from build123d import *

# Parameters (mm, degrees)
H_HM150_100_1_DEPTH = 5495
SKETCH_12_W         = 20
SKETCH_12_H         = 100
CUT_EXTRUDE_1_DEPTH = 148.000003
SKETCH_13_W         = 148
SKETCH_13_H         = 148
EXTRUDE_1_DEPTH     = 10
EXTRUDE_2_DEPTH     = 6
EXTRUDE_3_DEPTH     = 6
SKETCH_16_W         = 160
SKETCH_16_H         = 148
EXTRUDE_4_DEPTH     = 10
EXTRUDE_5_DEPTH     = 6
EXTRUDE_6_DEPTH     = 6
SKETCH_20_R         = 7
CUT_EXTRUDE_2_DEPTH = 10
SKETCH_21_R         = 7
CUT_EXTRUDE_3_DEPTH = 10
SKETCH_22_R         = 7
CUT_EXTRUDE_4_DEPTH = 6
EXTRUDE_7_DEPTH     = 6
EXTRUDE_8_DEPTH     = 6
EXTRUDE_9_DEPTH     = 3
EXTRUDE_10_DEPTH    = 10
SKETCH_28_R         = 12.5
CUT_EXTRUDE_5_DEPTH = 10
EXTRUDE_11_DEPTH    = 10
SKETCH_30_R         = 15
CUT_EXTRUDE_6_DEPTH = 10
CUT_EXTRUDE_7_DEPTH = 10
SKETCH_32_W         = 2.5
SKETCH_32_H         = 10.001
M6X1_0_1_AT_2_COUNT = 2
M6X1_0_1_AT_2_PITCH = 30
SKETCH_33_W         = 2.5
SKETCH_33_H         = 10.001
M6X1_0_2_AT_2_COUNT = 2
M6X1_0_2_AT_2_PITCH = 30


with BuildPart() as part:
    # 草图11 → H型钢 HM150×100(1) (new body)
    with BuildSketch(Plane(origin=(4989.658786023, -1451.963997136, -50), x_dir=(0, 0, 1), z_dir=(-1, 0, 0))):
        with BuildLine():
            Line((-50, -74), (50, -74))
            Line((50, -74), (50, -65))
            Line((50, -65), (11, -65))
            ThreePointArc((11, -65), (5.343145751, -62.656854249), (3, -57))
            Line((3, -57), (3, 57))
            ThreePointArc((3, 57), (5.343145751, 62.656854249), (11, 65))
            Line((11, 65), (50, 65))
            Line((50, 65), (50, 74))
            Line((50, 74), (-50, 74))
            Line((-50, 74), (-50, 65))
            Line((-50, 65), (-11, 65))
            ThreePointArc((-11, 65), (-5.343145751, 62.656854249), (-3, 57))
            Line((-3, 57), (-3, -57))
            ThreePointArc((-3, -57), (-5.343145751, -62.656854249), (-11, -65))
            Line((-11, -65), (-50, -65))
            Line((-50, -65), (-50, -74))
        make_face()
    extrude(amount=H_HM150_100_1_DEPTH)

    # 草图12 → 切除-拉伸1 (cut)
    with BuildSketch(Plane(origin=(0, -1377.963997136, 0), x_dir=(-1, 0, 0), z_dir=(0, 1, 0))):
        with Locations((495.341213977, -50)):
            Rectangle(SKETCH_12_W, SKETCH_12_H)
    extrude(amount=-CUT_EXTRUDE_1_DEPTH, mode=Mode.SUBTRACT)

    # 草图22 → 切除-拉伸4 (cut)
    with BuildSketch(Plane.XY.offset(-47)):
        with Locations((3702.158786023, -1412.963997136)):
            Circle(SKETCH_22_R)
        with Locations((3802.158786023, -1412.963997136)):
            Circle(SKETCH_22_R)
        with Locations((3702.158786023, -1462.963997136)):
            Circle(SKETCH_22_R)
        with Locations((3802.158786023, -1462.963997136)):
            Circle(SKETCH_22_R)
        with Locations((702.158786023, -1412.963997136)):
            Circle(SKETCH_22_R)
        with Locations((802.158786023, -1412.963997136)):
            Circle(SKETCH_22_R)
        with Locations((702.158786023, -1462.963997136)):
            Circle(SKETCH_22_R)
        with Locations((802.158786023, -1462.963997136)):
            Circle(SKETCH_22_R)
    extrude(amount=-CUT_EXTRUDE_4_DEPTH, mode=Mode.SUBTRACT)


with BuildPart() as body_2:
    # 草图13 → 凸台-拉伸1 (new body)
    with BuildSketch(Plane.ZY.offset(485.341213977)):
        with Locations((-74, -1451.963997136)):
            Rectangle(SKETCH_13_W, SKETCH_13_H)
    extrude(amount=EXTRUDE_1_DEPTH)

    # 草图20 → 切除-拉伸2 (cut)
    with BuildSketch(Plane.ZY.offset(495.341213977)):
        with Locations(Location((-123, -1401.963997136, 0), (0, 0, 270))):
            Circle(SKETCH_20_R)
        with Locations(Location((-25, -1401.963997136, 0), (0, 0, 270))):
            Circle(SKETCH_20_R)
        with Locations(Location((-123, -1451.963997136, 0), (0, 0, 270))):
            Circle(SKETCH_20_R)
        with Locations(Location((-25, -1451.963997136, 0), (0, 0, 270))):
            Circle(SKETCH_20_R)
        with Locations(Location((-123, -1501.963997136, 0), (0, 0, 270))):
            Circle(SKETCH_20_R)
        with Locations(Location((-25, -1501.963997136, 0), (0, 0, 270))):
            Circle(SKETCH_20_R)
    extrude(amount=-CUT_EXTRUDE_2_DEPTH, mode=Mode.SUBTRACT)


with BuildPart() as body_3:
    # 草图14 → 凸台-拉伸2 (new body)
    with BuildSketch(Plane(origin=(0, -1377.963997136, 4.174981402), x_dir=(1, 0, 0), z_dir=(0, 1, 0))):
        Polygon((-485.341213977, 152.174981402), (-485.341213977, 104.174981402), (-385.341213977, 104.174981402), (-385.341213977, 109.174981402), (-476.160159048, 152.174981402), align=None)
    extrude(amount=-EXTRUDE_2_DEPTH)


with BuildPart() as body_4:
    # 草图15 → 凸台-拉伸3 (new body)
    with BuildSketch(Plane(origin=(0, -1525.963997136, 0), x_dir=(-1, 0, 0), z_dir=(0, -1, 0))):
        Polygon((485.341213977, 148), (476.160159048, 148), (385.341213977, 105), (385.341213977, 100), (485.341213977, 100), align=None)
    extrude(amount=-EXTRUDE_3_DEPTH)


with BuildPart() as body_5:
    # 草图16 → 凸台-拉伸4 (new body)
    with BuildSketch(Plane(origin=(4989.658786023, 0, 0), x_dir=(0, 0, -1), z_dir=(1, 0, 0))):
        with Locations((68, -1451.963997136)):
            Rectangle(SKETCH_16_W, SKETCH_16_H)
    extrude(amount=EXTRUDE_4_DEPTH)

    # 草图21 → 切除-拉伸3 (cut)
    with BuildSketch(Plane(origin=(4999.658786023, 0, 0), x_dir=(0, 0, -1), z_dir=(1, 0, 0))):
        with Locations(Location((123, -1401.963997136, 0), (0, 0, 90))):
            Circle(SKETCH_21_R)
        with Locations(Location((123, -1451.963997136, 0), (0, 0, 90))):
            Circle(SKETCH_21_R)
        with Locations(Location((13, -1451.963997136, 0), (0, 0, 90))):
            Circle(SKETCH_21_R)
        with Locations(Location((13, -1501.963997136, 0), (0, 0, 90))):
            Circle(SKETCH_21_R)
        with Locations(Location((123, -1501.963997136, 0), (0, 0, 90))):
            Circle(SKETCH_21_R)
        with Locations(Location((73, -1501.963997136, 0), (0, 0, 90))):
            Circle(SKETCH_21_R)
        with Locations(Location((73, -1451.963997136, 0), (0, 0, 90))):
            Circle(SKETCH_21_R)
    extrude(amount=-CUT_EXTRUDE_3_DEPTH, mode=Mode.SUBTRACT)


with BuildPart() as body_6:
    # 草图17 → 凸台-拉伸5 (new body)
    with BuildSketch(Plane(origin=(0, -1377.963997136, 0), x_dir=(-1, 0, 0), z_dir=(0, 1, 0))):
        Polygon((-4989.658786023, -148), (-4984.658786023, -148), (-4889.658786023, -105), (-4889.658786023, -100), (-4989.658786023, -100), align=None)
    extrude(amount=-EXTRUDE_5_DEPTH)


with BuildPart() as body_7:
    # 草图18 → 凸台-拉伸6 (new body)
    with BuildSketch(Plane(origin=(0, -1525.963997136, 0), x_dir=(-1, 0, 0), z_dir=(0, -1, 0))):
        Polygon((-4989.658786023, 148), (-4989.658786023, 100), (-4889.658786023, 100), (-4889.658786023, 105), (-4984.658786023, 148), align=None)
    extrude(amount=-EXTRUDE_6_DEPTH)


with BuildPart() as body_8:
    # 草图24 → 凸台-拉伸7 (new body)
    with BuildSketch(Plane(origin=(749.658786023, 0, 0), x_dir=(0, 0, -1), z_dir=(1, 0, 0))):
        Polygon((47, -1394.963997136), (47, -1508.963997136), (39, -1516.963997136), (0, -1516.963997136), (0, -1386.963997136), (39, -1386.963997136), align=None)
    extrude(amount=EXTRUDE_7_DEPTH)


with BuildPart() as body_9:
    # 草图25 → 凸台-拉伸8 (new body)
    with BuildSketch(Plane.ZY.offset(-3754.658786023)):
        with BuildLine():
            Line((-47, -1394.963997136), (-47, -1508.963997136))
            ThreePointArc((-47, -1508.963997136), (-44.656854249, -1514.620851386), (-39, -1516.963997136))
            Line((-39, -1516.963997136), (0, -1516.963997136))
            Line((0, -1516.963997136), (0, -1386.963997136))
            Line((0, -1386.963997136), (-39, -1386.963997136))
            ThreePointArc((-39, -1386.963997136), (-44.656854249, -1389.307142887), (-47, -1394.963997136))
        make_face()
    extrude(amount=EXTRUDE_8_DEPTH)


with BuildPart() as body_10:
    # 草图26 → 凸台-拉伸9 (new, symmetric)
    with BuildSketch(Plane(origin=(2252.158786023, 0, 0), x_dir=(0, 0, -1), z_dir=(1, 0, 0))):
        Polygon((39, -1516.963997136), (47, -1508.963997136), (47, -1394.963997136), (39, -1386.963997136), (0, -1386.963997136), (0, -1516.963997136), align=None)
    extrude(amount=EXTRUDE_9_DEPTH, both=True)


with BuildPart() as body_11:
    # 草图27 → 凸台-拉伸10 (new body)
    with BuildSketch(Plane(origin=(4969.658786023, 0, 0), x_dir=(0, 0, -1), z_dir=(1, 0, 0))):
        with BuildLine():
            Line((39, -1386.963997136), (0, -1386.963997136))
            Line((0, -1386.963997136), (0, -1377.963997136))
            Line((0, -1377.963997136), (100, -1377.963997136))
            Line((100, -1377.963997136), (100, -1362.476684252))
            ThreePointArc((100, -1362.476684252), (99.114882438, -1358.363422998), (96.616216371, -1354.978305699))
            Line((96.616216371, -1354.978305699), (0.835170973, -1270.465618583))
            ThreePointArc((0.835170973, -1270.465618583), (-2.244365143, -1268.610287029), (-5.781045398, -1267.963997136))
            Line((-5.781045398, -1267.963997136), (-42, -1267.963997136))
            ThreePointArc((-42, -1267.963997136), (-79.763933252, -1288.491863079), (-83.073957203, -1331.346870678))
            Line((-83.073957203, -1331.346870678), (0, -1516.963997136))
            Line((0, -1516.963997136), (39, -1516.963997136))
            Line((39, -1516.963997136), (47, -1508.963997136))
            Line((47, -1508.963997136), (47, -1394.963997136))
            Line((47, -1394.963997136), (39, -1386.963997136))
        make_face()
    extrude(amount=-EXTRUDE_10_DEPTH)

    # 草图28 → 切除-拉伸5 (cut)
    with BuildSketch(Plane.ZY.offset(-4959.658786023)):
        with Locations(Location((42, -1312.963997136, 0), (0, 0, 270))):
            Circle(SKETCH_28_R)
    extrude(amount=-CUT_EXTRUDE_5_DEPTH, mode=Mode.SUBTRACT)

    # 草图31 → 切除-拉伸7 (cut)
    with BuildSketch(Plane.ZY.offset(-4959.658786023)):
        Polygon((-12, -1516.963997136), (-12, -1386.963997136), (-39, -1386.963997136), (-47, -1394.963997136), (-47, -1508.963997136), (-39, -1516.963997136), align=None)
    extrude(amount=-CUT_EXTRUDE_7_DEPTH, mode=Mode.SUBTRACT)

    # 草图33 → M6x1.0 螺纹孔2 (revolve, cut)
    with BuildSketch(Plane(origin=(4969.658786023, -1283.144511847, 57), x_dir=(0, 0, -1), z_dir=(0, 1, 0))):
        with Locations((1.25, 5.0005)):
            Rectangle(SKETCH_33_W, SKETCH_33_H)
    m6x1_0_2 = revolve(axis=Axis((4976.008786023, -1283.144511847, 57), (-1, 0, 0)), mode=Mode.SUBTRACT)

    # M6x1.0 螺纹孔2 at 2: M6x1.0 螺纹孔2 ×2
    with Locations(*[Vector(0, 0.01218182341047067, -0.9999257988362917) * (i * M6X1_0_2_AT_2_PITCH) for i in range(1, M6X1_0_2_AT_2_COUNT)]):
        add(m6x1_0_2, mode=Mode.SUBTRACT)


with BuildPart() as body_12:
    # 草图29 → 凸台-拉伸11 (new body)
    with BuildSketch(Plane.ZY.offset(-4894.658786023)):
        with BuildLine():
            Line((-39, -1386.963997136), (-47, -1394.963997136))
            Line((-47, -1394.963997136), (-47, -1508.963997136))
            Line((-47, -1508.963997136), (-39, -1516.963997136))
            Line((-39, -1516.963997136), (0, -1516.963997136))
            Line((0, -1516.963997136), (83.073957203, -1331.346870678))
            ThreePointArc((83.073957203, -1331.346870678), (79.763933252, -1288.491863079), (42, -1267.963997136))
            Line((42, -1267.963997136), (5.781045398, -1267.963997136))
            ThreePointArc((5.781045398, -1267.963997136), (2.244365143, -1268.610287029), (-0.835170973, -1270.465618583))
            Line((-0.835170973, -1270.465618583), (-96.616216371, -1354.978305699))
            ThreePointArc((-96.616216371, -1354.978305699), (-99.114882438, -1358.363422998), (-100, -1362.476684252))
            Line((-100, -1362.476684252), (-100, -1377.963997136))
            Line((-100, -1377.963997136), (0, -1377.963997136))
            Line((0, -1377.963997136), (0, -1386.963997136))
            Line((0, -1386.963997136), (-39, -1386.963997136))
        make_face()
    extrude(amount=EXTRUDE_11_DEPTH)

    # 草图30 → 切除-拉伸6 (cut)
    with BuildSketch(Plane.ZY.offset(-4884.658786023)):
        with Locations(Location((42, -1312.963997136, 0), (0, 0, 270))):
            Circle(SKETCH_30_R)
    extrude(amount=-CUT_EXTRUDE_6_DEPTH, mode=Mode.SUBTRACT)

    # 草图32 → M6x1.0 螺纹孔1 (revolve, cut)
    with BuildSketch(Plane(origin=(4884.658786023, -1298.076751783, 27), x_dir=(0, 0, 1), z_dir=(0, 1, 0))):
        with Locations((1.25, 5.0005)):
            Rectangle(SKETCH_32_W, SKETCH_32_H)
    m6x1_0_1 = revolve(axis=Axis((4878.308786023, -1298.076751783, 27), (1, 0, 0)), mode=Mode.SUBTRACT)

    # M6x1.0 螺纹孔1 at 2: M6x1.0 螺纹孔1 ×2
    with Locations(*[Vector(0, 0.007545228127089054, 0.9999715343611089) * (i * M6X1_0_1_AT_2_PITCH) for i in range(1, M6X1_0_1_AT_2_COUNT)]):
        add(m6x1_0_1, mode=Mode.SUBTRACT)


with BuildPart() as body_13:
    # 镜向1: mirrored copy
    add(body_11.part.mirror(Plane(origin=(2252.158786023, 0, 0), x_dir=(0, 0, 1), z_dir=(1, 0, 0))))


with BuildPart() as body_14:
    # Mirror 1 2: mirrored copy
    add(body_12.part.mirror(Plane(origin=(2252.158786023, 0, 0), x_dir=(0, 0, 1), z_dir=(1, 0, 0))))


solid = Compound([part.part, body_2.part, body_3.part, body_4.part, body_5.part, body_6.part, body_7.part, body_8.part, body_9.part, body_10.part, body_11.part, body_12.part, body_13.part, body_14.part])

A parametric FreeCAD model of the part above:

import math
import FreeCAD as App
import Part
import Sketcher
Q = App.Units.Quantity

doc = App.newDocument("Part")
body = doc.addObject("PartDesign::Body", "Body")

sketch1 = body.newObject("Sketcher::SketchObject", "Sketch")
sketch1.AttachmentSupport = (doc.getObject("YZ_Plane"), [""])
sketch1.MapMode = "FlatFace"
sketch1.AttachmentOffset = App.Placement(App.Vector(0, 0, 4989.658786), App.Rotation())
sketch1.addGeometry([
    Part.LineSegment(App.Vector(-1526, -100, 0), App.Vector(-1526, 0, 0)),
    Part.LineSegment(App.Vector(-1526, 0, 0), App.Vector(-1517, 0, 0)),
    Part.LineSegment(App.Vector(-1517, 0, 0), App.Vector(-1517, -39, 0)),
    Part.ArcOfCircle(Part.Circle(App.Vector(-1509, -39, 0), App.Vector(0, 0, 1), 8), math.radians(-180), math.radians(-90)),
    Part.LineSegment(App.Vector(-1509, -47, 0), App.Vector(-1395, -47, 0)),
    Part.ArcOfCircle(Part.Circle(App.Vector(-1395, -39, 0), App.Vector(0, 0, 1), 8), math.radians(-90), math.radians(0)),
    Part.LineSegment(App.Vector(-1387, -39, 0), App.Vector(-1387, 0, 0)),
    Part.LineSegment(App.Vector(-1387, 0, 0), App.Vector(-1378, 0, 0)),
    Part.LineSegment(App.Vector(-1378, 0, 0), App.Vector(-1378, -100, 0)),
    Part.LineSegment(App.Vector(-1378, -100, 0), App.Vector(-1387, -100, 0)),
    Part.LineSegment(App.Vector(-1387, -100, 0), App.Vector(-1387, -61, 0)),
    Part.ArcOfCircle(Part.Circle(App.Vector(-1395, -61, 0), App.Vector(0, 0, 1), 8), math.radians(0), math.radians(90)),
    Part.LineSegment(App.Vector(-1395, -53, 0), App.Vector(-1509, -53, 0)),
    Part.ArcOfCircle(Part.Circle(App.Vector(-1509, -61, 0), App.Vector(0, 0, 1), 8), math.radians(90), math.radians(180)),
    Part.LineSegment(App.Vector(-1517, -61, 0), App.Vector(-1517, -100, 0)),
    Part.LineSegment(App.Vector(-1517, -100, 0), App.Vector(-1526, -100, 0)),
], False)
sketch1.addConstraint([
    Sketcher.Constraint("Coincident", 0, 2, 1, 1),
    Sketcher.Constraint("Coincident", 1, 2, 2, 1),
    Sketcher.Constraint("Tangent", 2, 2, 3, 1),
    Sketcher.Constraint("Tangent", 3, 2, 4, 1),
    Sketcher.Constraint("Tangent", 4, 2, 5, 1),
    Sketcher.Constraint("Tangent", 5, 2, 6, 1),
    Sketcher.Constraint("Coincident", 6, 2, 7, 1),
    Sketcher.Constraint("Coincident", 7, 2, 8, 1),
    Sketcher.Constraint("Coincident", 8, 2, 9, 1),
    Sketcher.Constraint("Coincident", 9, 2, 10, 1),
    Sketcher.Constraint("Tangent", 10, 2, 11, 1),
    Sketcher.Constraint("Tangent", 11, 2, 12, 1),
    Sketcher.Constraint("Tangent", 12, 2, 13, 1),
    Sketcher.Constraint("Tangent", 13, 2, 14, 1),
    Sketcher.Constraint("Coincident", 14, 2, 15, 1),
    Sketcher.Constraint("Coincident", 15, 2, 0, 1),
    Sketcher.Constraint("Vertical", 0),
    Sketcher.Constraint("Horizontal", 1),
    Sketcher.Constraint("Vertical", 2),
    Sketcher.Constraint("Horizontal", 4),
    Sketcher.Constraint("Vertical", 6),
    Sketcher.Constraint("Horizontal", 7),
    Sketcher.Constraint("Vertical", 8),
    Sketcher.Constraint("Horizontal", 9),
    Sketcher.Constraint("Vertical", 10),
    Sketcher.Constraint("Horizontal", 12),
    Sketcher.Constraint("Vertical", 14),
    Sketcher.Constraint("Horizontal", 15),
    Sketcher.Constraint("Equal", 3, 5),
    Sketcher.Constraint("Equal", 5, 11),
    Sketcher.Constraint("Equal", 11, 13),
    Sketcher.Constraint("PointOnObject", 0, 2, -1),
    Sketcher.Constraint("PointOnObject", 6, 2, -1),
    Sketcher.Constraint("Horizontal", 9, 2, 14, 2),
    Sketcher.Constraint("Vertical", 5, 3, 11, 3),
    Sketcher.Constraint("Vertical", 3, 3, 13, 3),
    Sketcher.Constraint("Equal", 1, 7),
    Sketcher.Constraint("Equal", 6, 10),
    Sketcher.Constraint("Radius", 3, Q("8 mm")),
    Sketcher.Constraint("DistanceX", 1, 1, 1, 2, Q("9 mm")),
    Sketcher.Constraint("DistanceX", 4, 1, 4, 2, Q("114 mm")),
    Sketcher.Constraint("DistanceY", 0, 1, 0, 2, Q("100 mm")),
    Sketcher.Constraint("DistanceY", 2, 2, 2, 1, Q("39 mm")),
    Sketcher.Constraint("DistanceX", 3, 3, -1, 1, Q("1508.963997 mm")),
])
pad1 = body.newObject("PartDesign::Pad", "Pad")
pad1.Profile = sketch1
pad1.Length = 5495
pad1.Reversed = True

sketch2 = body.newObject("Sketcher::SketchObject", "Sketch001")
sketch2.AttachmentSupport = (doc.getObject("XZ_Plane"), [""])
sketch2.MapMode = "FlatFace"
sketch2.AttachmentOffset = App.Placement(App.Vector(0, 0, 1377.963997), App.Rotation())
sketch2.addGeometry([
    Part.LineSegment(App.Vector(-485, 0, 0), App.Vector(-485, -100, 0)),
    Part.LineSegment(App.Vector(-485, -100, 0), App.Vector(-505, -100, 0)),
    Part.LineSegment(App.Vector(-505, -100, 0), App.Vector(-505, 0, 0)),
    Part.LineSegment(App.Vector(-505, 0, 0), App.Vector(-485, 0, 0)),
], False)
sketch2.addConstraint([
    Sketcher.Constraint("Coincident", 0, 2, 1, 1),
    Sketcher.Constraint("Coincident", 1, 2, 2, 1),
    Sketcher.Constraint("Coincident", 2, 2, 3, 1),
    Sketcher.Constraint("Coincident", 3, 2, 0, 1),
    Sketcher.Constraint("Vertical", 0),
    Sketcher.Constraint("Horizontal", 1),
    Sketcher.Constraint("Vertical", 2),
    Sketcher.Constraint("Horizontal", 3),
    Sketcher.Constraint("PointOnObject", 2, 2, -1),
    Sketcher.Constraint("DistanceX", 1, 2, 1, 1, Q("20 mm")),
    Sketcher.Constraint("DistanceY", 0, 2, 0, 1, Q("100 mm")),
    Sketcher.Constraint("DistanceX", 0, 2, -1, 1, Q("485.341214 mm")),
])
pocket1 = body.newObject("PartDesign::Pocket", "Pocket")
pocket1.Profile = sketch2
pocket1.Length = 148.000003
pocket1.Reversed = True

sketch3 = body.newObject("Sketcher::SketchObject", "Sketch002")
sketch3.AttachmentSupport = (doc.getObject("XY_Plane"), [""])
sketch3.MapMode = "FlatFace"
sketch3.AttachmentOffset = App.Placement(App.Vector(0, 0, -47), App.Rotation())
sketch3.addGeometry([
    Part.Circle(App.Vector(3702, -1413, 0), App.Vector(0, 0, 1), 7),
    Part.Circle(App.Vector(3802, -1413, 0), App.Vector(0, 0, 1), 7),
    Part.Circle(App.Vector(3702, -1463, 0), App.Vector(0, 0, 1), 7),
    Part.Circle(App.Vector(3802, -1463, 0), App.Vector(0, 0, 1), 7),
    Part.Circle(App.Vector(702, -1413, 0), App.Vector(0, 0, 1), 7),
    Part.Circle(App.Vector(802, -1413, 0), App.Vector(0, 0, 1), 7),
    Part.Circle(App.Vector(702, -1463, 0), App.Vector(0, 0, 1), 7),
    Part.Circle(App.Vector(802, -1463, 0), App.Vector(0, 0, 1), 7),
], False)
sketch3.addConstraint([
    Sketcher.Constraint("Equal", 0, 1),
    Sketcher.Constraint("Equal", 1, 2),
    Sketcher.Constraint("Equal", 2, 3),
    Sketcher.Constraint("Equal", 3, 4),
    Sketcher.Constraint("Equal", 4, 5),
    Sketcher.Constraint("Equal", 5, 6),
    Sketcher.Constraint("Equal", 6, 7),
    Sketcher.Constraint("Horizontal", 0, 3, 1, 3),
    Sketcher.Constraint("Horizontal", 2, 3, 3, 3),
    Sketcher.Constraint("Horizontal", 1, 3, 4, 3),
    Sketcher.Constraint("Horizontal", 4, 3, 5, 3),
    Sketcher.Constraint("Horizontal", 3, 3, 6, 3),
    Sketcher.Constraint("Horizontal", 6, 3, 7, 3),
    Sketcher.Constraint("Vertical", 0, 3, 2, 3),
    Sketcher.Constraint("Vertical", 1, 3, 3, 3),
    Sketcher.Constraint("Vertical", 4, 3, 6, 3),
    Sketcher.Constraint("Vertical", 5, 3, 7, 3),
    Sketcher.Constraint("Diameter", 0, Q("14 mm")),
    Sketcher.Constraint("DistanceX", 0, 3, 1, 3, Q("100 mm")),
    Sketcher.Constraint("DistanceY", 2, 3, 0, 3, Q("50 mm")),
    Sketcher.Constraint("DistanceX", 4, 3, 0, 3, Q("3000 mm")),
    Sketcher.Constraint("DistanceX", 4, 3, 5, 3, Q("100 mm")),
    Sketcher.Constraint("DistanceX", -1, 1, 0, 3, Q("3702.158786 mm")),
    Sketcher.Constraint("DistanceY", 0, 3, -1, 1, Q("1412.963997 mm")),
])
pocket2 = body.newObject("PartDesign::Pocket", "Pocket001")
pocket2.Profile = sketch3
pocket2.Length = 6
body2 = doc.addObject("PartDesign::Body", "Body001")

sketch4 = body2.newObject("Sketcher::SketchObject", "Sketch003")
sketch4.AttachmentSupport = (doc.getObject("YZ_Plane001"), [""])
sketch4.MapMode = "FlatFace"
sketch4.AttachmentOffset = App.Placement(App.Vector(0, 0, -485.341214), App.Rotation())
sketch4.addGeometry([
    Part.LineSegment(App.Vector(-1378, -148, 0), App.Vector(-1526, -148, 0)),
    Part.LineSegment(App.Vector(-1526, -148, 0), App.Vector(-1526, 0, 0)),
    Part.LineSegment(App.Vector(-1526, 0, 0), App.Vector(-1378, 0, 0)),
    Part.LineSegment(App.Vector(-1378, 0, 0), App.Vector(-1378, -148, 0)),
], False)
sketch4.addConstraint([
    Sketcher.Constraint("Coincident", 0, 2, 1, 1),
    Sketcher.Constraint("Coincident", 1, 2, 2, 1),
    Sketcher.Constraint("Coincident", 2, 2, 3, 1),
    Sketcher.Constraint("Coincident", 3, 2, 0, 1),
    Sketcher.Constraint("Horizontal", 0),
    Sketcher.Constraint("Vertical", 1),
    Sketcher.Constraint("Horizontal", 2),
    Sketcher.Constraint("Vertical", 3),
    Sketcher.Constraint("PointOnObject", 1, 2, -1),
    Sketcher.Constraint("Equal", 2, 1),
    Sketcher.Constraint("DistanceX", 0, 2, 0, 1, Q("148 mm")),
    Sketcher.Constraint("DistanceX", 0, 2, -1, 1, Q("1525.963997 mm")),
])
pad2 = body2.newObject("PartDesign::Pad", "Pad001")
pad2.Profile = sketch4
pad2.Length = 10
pad2.Reversed = True

sketch5 = body2.newObject("Sketcher::SketchObject", "Sketch004")
sketch5.AttachmentSupport = (doc.getObject("YZ_Plane001"), [""])
sketch5.MapMode = "FlatFace"
sketch5.AttachmentOffset = App.Placement(App.Vector(0, 0, -495.341214), App.Rotation())
sketch5.addGeometry([
    Part.Circle(App.Vector(-1402, -123, 0), App.Vector(0, 0, 1), 7),
    Part.Circle(App.Vector(-1402, -25, 0), App.Vector(0, 0, 1), 7),
    Part.Circle(App.Vector(-1452, -123, 0), App.Vector(0, 0, 1), 7),
    Part.Circle(App.Vector(-1452, -25, 0), App.Vector(0, 0, 1), 7),
    Part.Circle(App.Vector(-1502, -123, 0), App.Vector(0, 0, 1), 7),
    Part.Circle(App.Vector(-1502, -25, 0), App.Vector(0, 0, 1), 7),
], False)
sketch5.addConstraint([
    Sketcher.Constraint("Equal", 0, 1),
    Sketcher.Constraint("Equal", 1, 2),
    Sketcher.Constraint("Equal", 2, 3),
    Sketcher.Constraint("Equal", 3, 4),
    Sketcher.Constraint("Equal", 4, 5),
    Sketcher.Constraint("Horizontal", 0, 3, 2, 3),
    Sketcher.Constraint("Horizontal", 1, 3, 3, 3),
    Sketcher.Constraint("Horizontal", 2, 3, 4, 3),
    Sketcher.Constraint("Horizontal", 3, 3, 5, 3),
    Sketcher.Constraint("Vertical", 0, 3, 1, 3),
    Sketcher.Constraint("Vertical", 2, 3, 3, 3),
    Sketcher.Constraint("Vertical", 4, 3, 5, 3),
    Sketcher.Constraint("Diameter", 0, Q("14 mm")),
    Sketcher.Constraint("DistanceY", 0, 3, -1, 1, Q("123 mm")),
    Sketcher.Constraint("DistanceY", 1, 3, -1, 1, Q("25 mm")),
    Sketcher.Constraint("DistanceX", 2, 3, 0, 3, Q("50 mm")),
    Sketcher.Constraint("DistanceX", 4, 3, 2, 3, Q("50 mm")),
    Sketcher.Constraint("DistanceX", 0, 3, -1, 1, Q("1401.963997 mm")),
])
pocket3 = body2.newObject("PartDesign::Pocket", "Pocket002")
pocket3.Profile = sketch5
pocket3.Length = 10
pocket3.Reversed = True
body3 = doc.addObject("PartDesign::Body", "Body002")

sketch6 = body3.newObject("Sketcher::SketchObject", "Sketch005")
sketch6.AttachmentSupport = (doc.getObject("XZ_Plane002"), [""])
sketch6.MapMode = "FlatFace"
sketch6.AttachmentOffset = App.Placement(App.Vector(0, 0, 1377.963997), App.Rotation())
sketch6.addGeometry([
    Part.LineSegment(App.Vector(-485, -148, 0), App.Vector(-485, -100, 0)),
    Part.LineSegment(App.Vector(-485, -100, 0), App.Vector(-385, -100, 0)),
    Part.LineSegment(App.Vector(-385, -100, 0), App.Vector(-385, -105, 0)),
    Part.LineSegment(App.Vector(-385, -105, 0), App.Vector(-476, -148, 0)),
    Part.LineSegment(App.Vector(-476, -148, 0), App.Vector(-485, -148, 0)),
], False)
sketch6.addConstraint([
    Sketcher.Constraint("Coincident", 0, 2, 1, 1),
    Sketcher.Constraint("Coincident", 1, 2, 2, 1),
    Sketcher.Constraint("Coincident", 2, 2, 3, 1),
    Sketcher.Constraint("Coincident", 3, 2, 4, 1),
    Sketcher.Constraint("Coincident", 4, 2, 0, 1),
    Sketcher.Constraint("Vertical", 0),
    Sketcher.Constraint("Horizontal", 1),
    Sketcher.Constraint("Vertical", 2),
    Sketcher.Constraint("Horizontal", 4),
    Sketcher.Constraint("DistanceX", 1, 1, 1, 2, Q("100 mm")),
    Sketcher.Constraint("DistanceY", 0, 1, 0, 2, Q("48 mm")),
    Sketcher.Constraint("DistanceY", 2, 2, 2, 1, Q("5 mm")),
    Sketcher.Constraint("DistanceY", 0, 2, -1, 1, Q("100 mm")),
    Sketcher.Constraint("Distance", 3, Q("100.484232 mm")),
    Sketcher.Constraint("DistanceX", 3, 2, -1, 1, Q("476.160159 mm")),
])
pad3 = body3.newObject("PartDesign::Pad", "Pad002")
pad3.Profile = sketch6
pad3.Length = 6
body4 = doc.addObject("PartDesign::Body", "Body003")

sketch7 = body4.newObject("Sketcher::SketchObject", "Sketch006")
sketch7.AttachmentSupport = (doc.getObject("XZ_Plane003"), [""])
sketch7.MapMode = "FlatFace"
sketch7.AttachmentOffset = App.Placement(App.Vector(0, 0, 1525.963997), App.Rotation())
sketch7.addGeometry([
    Part.LineSegment(App.Vector(-485, -148, 0), App.Vector(-476, -148, 0)),
    Part.LineSegment(App.Vector(-476, -148, 0), App.Vector(-385, -105, 0)),
    Part.LineSegment(App.Vector(-385, -105, 0), App.Vector(-385, -100, 0)),
    Part.LineSegment(App.Vector(-385, -100, 0), App.Vector(-485, -100, 0)),
    Part.LineSegment(App.Vector(-485, -100, 0), App.Vector(-485, -148, 0)),
], False)
sketch7.addConstraint([
    Sketcher.Constraint("Coincident", 0, 2, 1, 1),
    Sketcher.Constraint("Coincident", 1, 2, 2, 1),
    Sketcher.Constraint("Coincident", 2, 2, 3, 1),
    Sketcher.Constraint("Coincident", 3, 2, 4, 1),
    Sketcher.Constraint("Coincident", 4, 2, 0, 1),
    Sketcher.Constraint("Horizontal", 0),
    Sketcher.Constraint("Vertical", 2),
    Sketcher.Constraint("Horizontal", 3),
    Sketcher.Constraint("Vertical", 4),
    Sketcher.Constraint("DistanceX", 3, 2, 3, 1, Q("100 mm")),
    Sketcher.Constraint("DistanceY", 2, 1, 2, 2, Q("5 mm")),
    Sketcher.Constraint("DistanceY", 4, 2, 4, 1, Q("48 mm")),
    Sketcher.Constraint("DistanceY", 0, 2, -1, 1, Q("148 mm")),
    Sketcher.Constraint("Distance", 1, Q("100.484232 mm")),
    Sketcher.Constraint("DistanceX", 0, 2, -1, 1, Q("476.160159 mm")),
])
pad4 = body4.newObject("PartDesign::Pad", "Pad003")
pad4.Profile = sketch7
pad4.Length = 6
pad4.Reversed = True
body5 = doc.addObject("PartDesign::Body", "Body004")

sketch8 = body5.newObject("Sketcher::SketchObject", "Sketch007")
sketch8.AttachmentSupport = (doc.getObject("YZ_Plane004"), [""])
sketch8.MapMode = "FlatFace"
sketch8.AttachmentOffset = App.Placement(App.Vector(0, 0, 4989.658786), App.Rotation())
sketch8.addGeometry([
    Part.LineSegment(App.Vector(-1378, 12, 0), App.Vector(-1526, 12, 0)),
    Part.LineSegment(App.Vector(-1526, 12, 0), App.Vector(-1526, -148, 0)),
    Part.LineSegment(App.Vector(-1526, -148, 0), App.Vector(-1378, -148, 0)),
    Part.LineSegment(App.Vector(-1378, -148, 0), App.Vector(-1378, 12, 0)),
], False)
sketch8.addConstraint([
    Sketcher.Constraint("Coincident", 0, 2, 1, 1),
    Sketcher.Constraint("Coincident", 1, 2, 2, 1),
    Sketcher.Constraint("Coincident", 2, 2, 3, 1),
    Sketcher.Constraint("Coincident", 3, 2, 0, 1),
    Sketcher.Constraint("Horizontal", 0),
    Sketcher.Constraint("Vertical", 1),
    Sketcher.Constraint("Horizontal", 2),
    Sketcher.Constraint("Vertical", 3),
    Sketcher.Constraint("DistanceX", 0, 2, 0, 1, Q("148 mm")),
    Sketcher.Constraint("DistanceY", 1, 2, 1, 1, Q("160 mm")),
    Sketcher.Constraint("DistanceY", -1, 1, 0, 2, Q("12 mm")),
    Sketcher.Constraint("DistanceX", 0, 2, -1, 1, Q("1525.963997 mm")),
])
pad5 = body5.newObject("PartDesign::Pad", "Pad004")
pad5.Profile = sketch8
pad5.Length = 10

sketch9 = body5.newObject("Sketcher::SketchObject", "Sketch008")
sketch9.AttachmentSupport = (doc.getObject("YZ_Plane004"), [""])
sketch9.MapMode = "FlatFace"
sketch9.AttachmentOffset = App.Placement(App.Vector(0, 0, 4999.658786), App.Rotation())
sketch9.addGeometry([
    Part.Circle(App.Vector(-1402, -123, 0), App.Vector(0, 0, 1), 7),
    Part.Circle(App.Vector(-1452, -123, 0), App.Vector(0, 0, 1), 7),
    Part.Circle(App.Vector(-1452, -13, 0), App.Vector(0, 0, 1), 7),
    Part.Circle(App.Vector(-1502, -13, 0), App.Vector(0, 0, 1), 7),
    Part.Circle(App.Vector(-1502, -123, 0), App.Vector(0, 0, 1), 7),
    Part.Circle(App.Vector(-1502, -73, 0), App.Vector(0, 0, 1), 7),
    Part.Circle(App.Vector(-1452, -73, 0), App.Vector(0, 0, 1), 7),
], False)
sketch9.addConstraint([
    Sketcher.Constraint("Equal", 0, 1),
    Sketcher.Constraint("Equal", 1, 2),
    Sketcher.Constraint("Equal", 2, 3),
    Sketcher.Constraint("Equal", 3, 4),
    Sketcher.Constraint("Equal", 4, 5),
    Sketcher.Constraint("Equal", 5, 6),
    Sketcher.Constraint("Horizontal", 0, 3, 1, 3),
    Sketcher.Constraint("Horizontal", 2, 3, 3, 3),
    Sketcher.Constraint("Horizontal", 1, 3, 4, 3),
    Sketcher.Constraint("Horizontal", 5, 3, 6, 3),
    Sketcher.Constraint("Vertical", 1, 3, 2, 3),
    Sketcher.Constraint("Vertical", 3, 3, 4, 3),
    Sketcher.Constraint("Vertical", 4, 3, 5, 3),
    Sketcher.Constraint("Vertical", 2, 3, 6, 3),
    Sketcher.Constraint("Diameter", 0, Q("14 mm")),
    Sketcher.Constraint("DistanceY", 0, 3, -1, 1, Q("123 mm")),
    Sketcher.Constraint("DistanceY", 2, 3, -1, 1, Q("13 mm")),
    Sketcher.Constraint("DistanceY", 5, 3, -1, 1, Q("73 mm")),
    Sketcher.Constraint("DistanceX", 1, 3, 0, 3, Q("50 mm")),
    Sketcher.Constraint("DistanceX", 3, 3, 2, 3, Q("50 mm")),
    Sketcher.Constraint("DistanceX", 0, 3, -1, 1, Q("1401.963997 mm")),
])
pocket4 = body5.newObject("PartDesign::Pocket", "Pocket003")
pocket4.Profile = sketch9
pocket4.Length = 10
body6 = doc.addObject("PartDesign::Body", "Body005")

sketch10 = body6.newObject("Sketcher::SketchObject", "Sketch009")
sketch10.AttachmentSupport = (doc.getObject("XZ_Plane005"), [""])
sketch10.MapMode = "FlatFace"
sketch10.AttachmentOffset = App.Placement(App.Vector(0, 0, 1377.963997), App.Rotation())
sketch10.addGeometry([
    Part.LineSegment(App.Vector(4990, -148, 0), App.Vector(4985, -148, 0)),
    Part.LineSegment(App.Vector(4985, -148, 0), App.Vector(4890, -105, 0)),
    Part.LineSegment(App.Vector(4890, -105, 0), App.Vector(4890, -100, 0)),
    Part.LineSegment(App.Vector(4890, -100, 0), App.Vector(4990, -100, 0)),
    Part.LineSegment(App.Vector(4990, -100, 0), App.Vector(4990, -148, 0)),
], False)
sketch10.addConstraint([
    Sketcher.Constraint("Coincident", 0, 2, 1, 1),
    Sketcher.Constraint("Coincident", 1, 2, 2, 1),
    Sketcher.Constraint("Coincident", 2, 2, 3, 1),
    Sketcher.Constraint("Coincident", 3, 2, 4, 1),
    Sketcher.Constraint("Coincident", 4, 2, 0, 1),
    Sketcher.Constraint("Horizontal", 0),
    Sketcher.Constraint("Vertical", 2),
    Sketcher.Constraint("Horizontal", 3),
    Sketcher.Constraint("Vertical", 4),
    Sketcher.Constraint("Equal", 0, 2),
    Sketcher.Constraint("DistanceX", 0, 2, 0, 1, Q("5 mm")),
    Sketcher.Constraint("DistanceX", 3, 1, 3, 2, Q("100 mm")),
    Sketcher.Constraint("DistanceY", 4, 2, 4, 1, Q("48 mm")),
    Sketcher.Constraint("DistanceY", 0, 2, -1, 1, Q("148 mm")),
    Sketcher.Constraint("DistanceX", -1, 1, 0, 2, Q("4984.658786 mm")),
])
pad6 = body6.newObject("PartDesign::Pad", "Pad005")
pad6.Profile = sketch10
pad6.Length = 6
body7 = doc.addObject("PartDesign::Body", "Body006")

sketch11 = body7.newObject("Sketcher::SketchObject", "Sketch010")
sketch11.AttachmentSupport = (doc.getObject("XZ_Plane006"), [""])
sketch11.MapMode = "FlatFace"
sketch11.AttachmentOffset = App.Placement(App.Vector(0, 0, 1525.963997), App.Rotation())
sketch11.addGeometry([
    Part.LineSegment(App.Vector(4990, -148, 0), App.Vector(4990, -100, 0)),
    Part.LineSegment(App.Vector(4990, -100, 0), App.Vector(4890, -100, 0)),
    Part.LineSegment(App.Vector(4890, -100, 0), App.Vector(4890, -105, 0)),
    Part.LineSegment(App.Vector(4890, -105, 0), App.Vector(4985, -148, 0)),
    Part.LineSegment(App.Vector(4985, -148, 0), App.Vector(4990, -148, 0)),
], False)
sketch11.addConstraint([
    Sketcher.Constraint("Coincident", 0, 2, 1, 1),
    Sketcher.Constraint("Coincident", 1, 2, 2, 1),
    Sketcher.Constraint("Coincident", 2, 2, 3, 1),
    Sketcher.Constraint("Coincident", 3, 2, 4, 1),
    Sketcher.Constraint("Coincident", 4, 2, 0, 1),
    Sketcher.Constraint("Vertical", 0),
    Sketcher.Constraint("Horizontal", 1),
    Sketcher.Constraint("Vertical", 2),
    Sketcher.Constraint("Horizontal", 4),
    Sketcher.Constraint("Equal", 4, 2),
    Sketcher.Constraint("DistanceX", 1, 2, 1, 1, Q("100 mm")),
    Sketcher.Constraint("DistanceX", 4, 1, 4, 2, Q("5 mm")),
    Sketcher.Constraint("DistanceY", 0, 1, 0, 2, Q("48 mm")),
    Sketcher.Constraint("DistanceY", 0, 2, -1, 1, Q("100 mm")),
    Sketcher.Constraint("DistanceX", -1, 1, 0, 2, Q("4989.658786 mm")),
])
pad7 = body7.newObject("PartDesign::Pad", "Pad006")
pad7.Profile = sketch11
pad7.Length = 6
pad7.Reversed = True
body8 = doc.addObject("PartDesign::Body", "Body007")

sketch12 = body8.newObject("Sketcher::SketchObject", "Sketch011")
sketch12.AttachmentSupport = (doc.getObject("YZ_Plane007"), [""])
sketch12.MapMode = "FlatFace"
sketch12.AttachmentOffset = App.Placement(App.Vector(0, 0, 749.658786), App.Rotation())
sketch12.addGeometry([
    Part.LineSegment(App.Vector(-1509, -47, 0), App.Vector(-1395, -47, 0)),
    Part.LineSegment(App.Vector(-1395, -47, 0), App.Vector(-1387, -39, 0)),
    Part.LineSegment(App.Vector(-1387, -39, 0), App.Vector(-1387, 0, 0)),
    Part.LineSegment(App.Vector(-1387, 0, 0), App.Vector(-1517, 0, 0)),
    Part.LineSegment(App.Vector(-1517, 0, 0), App.Vector(-1517, -39, 0)),
    Part.LineSegment(App.Vector(-1517, -39, 0), App.Vector(-1509, -47, 0)),
], False)
sketch12.addConstraint([
    Sketcher.Constraint("Coincident", 0, 2, 1, 1),
    Sketcher.Constraint("Coincident", 1, 2, 2, 1),
    Sketcher.Constraint("Coincident", 2, 2, 3, 1),
    Sketcher.Constraint("Coincident", 3, 2, 4, 1),
    Sketcher.Constraint("Coincident", 4, 2, 5, 1),
    Sketcher.Constraint("Coincident", 5, 2, 0, 1),
    Sketcher.Constraint("Horizontal", 0),
    Sketcher.Constraint("Vertical", 2),
    Sketcher.Constraint("Horizontal", 3),
    Sketcher.Constraint("Vertical", 4),
    Sketcher.Constraint("PointOnObject", 2, 2, -1),
    Sketcher.Constraint("Perpendicular", 1, 5),
    Sketcher.Constraint("Horizontal", 1, 2, 4, 2),
    Sketcher.Constraint("Equal", 1, 5),
    Sketcher.Constraint("DistanceX", 0, 1, 0, 2, Q("114 mm")),
    Sketcher.Constraint("DistanceX", 3, 2, 3, 1, Q("130 mm")),
    Sketcher.Constraint("DistanceY", 2, 1, 2, 2, Q("39 mm")),
    Sketcher.Constraint("DistanceX", 0, 2, -1, 1, Q("1394.963997 mm")),
])
pad8 = body8.newObject("PartDesign::Pad", "Pad007")
pad8.Profile = sketch12
pad8.Length = 6
body9 = doc.addObject("PartDesign::Body", "Body008")

sketch13 = body9.newObject("Sketcher::SketchObject", "Sketch012")
sketch13.AttachmentSupport = (doc.getObject("YZ_Plane008"), [""])
sketch13.MapMode = "FlatFace"
sketch13.AttachmentOffset = App.Placement(App.Vector(0, 0, 3754.658786), App.Rotation())
sketch13.addGeometry([
    Part.LineSegment(App.Vector(-1395, -47, 0), App.Vector(-1509, -47, 0)),
    Part.ArcOfCircle(Part.Circle(App.Vector(-1509, -39, 0), App.Vector(0, 0, 1), 8), math.radians(180), math.radians(270)),
    Part.LineSegment(App.Vector(-1517, -39, 0), App.Vector(-1517, 0, 0)),
    Part.LineSegment(App.Vector(-1517, 0, 0), App.Vector(-1387, 0, 0)),
    Part.LineSegment(App.Vector(-1387, 0, 0), App.Vector(-1387, -39, 0)),
    Part.ArcOfCircle(Part.Circle(App.Vector(-1395, -39, 0), App.Vector(0, 0, 1), 8), math.radians(-90), math.radians(0)),
], False)
sketch13.addConstraint([
    Sketcher.Constraint("Tangent", 0, 2, 1, 2),
    Sketcher.Constraint("Tangent", 1, 1, 2, 1),
    Sketcher.Constraint("Coincident", 2, 2, 3, 1),
    Sketcher.Constraint("Coincident", 3, 2, 4, 1),
    Sketcher.Constraint("Tangent", 4, 2, 5, 2),
    Sketcher.Constraint("Tangent", 5, 1, 0, 1),
    Sketcher.Constraint("Horizontal", 0),
    Sketcher.Constraint("Vertical", 2),
    Sketcher.Constraint("Horizontal", 3),
    Sketcher.Constraint("Vertical", 4),
    Sketcher.Constraint("Equal", 1, 5),
    Sketcher.Constraint("PointOnObject", 2, 2, -1),
    Sketcher.Constraint("Radius", 1, Q("8 mm")),
    Sketcher.Constraint("DistanceX", 0, 2, 0, 1, Q("114 mm")),
    Sketcher.Constraint("DistanceY", 2, 1, 2, 2, Q("39 mm")),
    Sketcher.Constraint("DistanceX", 1, 3, -1, 1, Q("1508.963997 mm")),
])
pad9 = body9.newObject("PartDesign::Pad", "Pad008")
pad9.Profile = sketch13
pad9.Length = 6
pad9.Reversed = True
body10 = doc.addObject("PartDesign::Body", "Body009")

sketch14 = body10.newObject("Sketcher::SketchObject", "Sketch013")
sketch14.AttachmentSupport = (doc.getObject("YZ_Plane009"), [""])
sketch14.MapMode = "FlatFace"
sketch14.AttachmentOffset = App.Placement(App.Vector(0, 0, 2252.158786), App.Rotation())
sketch14.addGeometry([
    Part.LineSegment(App.Vector(-1517, -39, 0), App.Vector(-1509, -47, 0)),
    Part.LineSegment(App.Vector(-1509, -47, 0), App.Vector(-1395, -47, 0)),
    Part.LineSegment(App.Vector(-1395, -47, 0), App.Vector(-1387, -39, 0)),
    Part.LineSegment(App.Vector(-1387, -39, 0), App.Vector(-1387, 0, 0)),
    Part.LineSegment(App.Vector(-1387, 0, 0), App.Vector(-1517, 0, 0)),
    Part.LineSegment(App.Vector(-1517, 0, 0), App.Vector(-1517, -39, 0)),
], False)
sketch14.addConstraint([
    Sketcher.Constraint("Coincident", 0, 2, 1, 1),
    Sketcher.Constraint("Coincident", 1, 2, 2, 1),
    Sketcher.Constraint("Coincident", 2, 2, 3, 1),
    Sketcher.Constraint("Coincident", 3, 2, 4, 1),
    Sketcher.Constraint("Coincident", 4, 2, 5, 1),
    Sketcher.Constraint("Coincident", 5, 2, 0, 1),
    Sketcher.Constraint("Horizontal", 1),
    Sketcher.Constraint("Vertical", 3),
    Sketcher.Constraint("Horizontal", 4),
    Sketcher.Constraint("Vertical", 5),
    Sketcher.Constraint("PointOnObject", 3, 2, -1),
    Sketcher.Constraint("Perpendicular", 0, 2),
    Sketcher.Constraint("Horizontal", 2, 2, 5, 2),
    Sketcher.Constraint("Equal", 0, 2),
    Sketcher.Constraint("DistanceX", 1, 1, 1, 2, Q("114 mm")),
    Sketcher.Constraint("DistanceX", 4, 2, 4, 1, Q("130 mm")),
    Sketcher.Constraint("DistanceY", 3, 1, 3, 2, Q("39 mm")),
    Sketcher.Constraint("DistanceX", 0, 2, -1, 1, Q("1508.963997 mm")),
])
pad10 = body10.newObject("PartDesign::Pad", "Pad009")
pad10.Profile = sketch14
pad10.Length = 6
pad10.Midplane = True
body11 = doc.addObject("PartDesign::Body", "Body010")

sketch15 = body11.newObject("Sketcher::SketchObject", "Sketch014")
sketch15.AttachmentSupport = (doc.getObject("YZ_Plane010"), [""])
sketch15.MapMode = "FlatFace"
sketch15.AttachmentOffset = App.Placement(App.Vector(0, 0, 4969.658786), App.Rotation())
sketch15.addGeometry([
    Part.LineSegment(App.Vector(-1387, -39, 0), App.Vector(-1387, 0, 0)),
    Part.LineSegment(App.Vector(-1387, 0, 0), App.Vector(-1378, 0, 0)),
    Part.LineSegment(App.Vector(-1378, 0, 0), App.Vector(-1378, -100, 0)),
    Part.LineSegment(App.Vector(-1378, -100, 0), App.Vector(-1362, -100, 0)),
    Part.ArcOfCircle(Part.Circle(App.Vector(-1362, -90, 0), App.Vector(0, 0, 1), 10), math.radians(-90), math.radians(-41)),
    Part.LineSegment(App.Vector(-1355, -97, 0), App.Vector(-1270, -1, 0)),
    Part.ArcOfCircle(Part.Circle(App.Vector(-1278, 6, 0), App.Vector(0, 0, 1), 10), math.radians(-41), math.radians(0)),
    Part.LineSegment(App.Vector(-1268, 6, 0), App.Vector(-1268, 42, 0)),
    Part.ArcOfCircle(Part.Circle(App.Vector(-1313, 42, 0), App.Vector(0, 0, 1), 45), math.radians(0), math.radians(114)),
    Part.LineSegment(App.Vector(-1331, 83, 0), App.Vector(-1517, 0, 0)),
    Part.LineSegment(App.Vector(-1517, 0, 0), App.Vector(-1517, -39, 0)),
    Part.LineSegment(App.Vector(-1517, -39, 0), App.Vector(-1509, -47, 0)),
    Part.LineSegment(App.Vector(-1509, -47, 0), App.Vector(-1395, -47, 0)),
    Part.LineSegment(App.Vector(-1395, -47, 0), App.Vector(-1387, -39, 0)),
], False)
sketch15.addConstraint([
    Sketcher.Constraint("Coincident", 0, 2, 1, 1),
    Sketcher.Constraint("Coincident", 1, 2, 2, 1),
    Sketcher.Constraint("Coincident", 2, 2, 3, 1),
    Sketcher.Constraint("Tangent", 3, 2, 4, 1),
    Sketcher.Constraint("Tangent", 4, 2, 5, 1),
    Sketcher.Constraint("Tangent", 5, 2, 6, 1),
    Sketcher.Constraint("Tangent", 6, 2, 7, 1),
    Sketcher.Constraint("Tangent", 7, 2, 8, 1),
    Sketcher.Constraint("Tangent", 8, 2, 9, 1),
    Sketcher.Constraint("Coincident", 9, 2, 10, 1),
    Sketcher.Constraint("Coincident", 10, 2, 11, 1),
    Sketcher.Constraint("Coincident", 11, 2, 12, 1),
    Sketcher.Constraint("Coincident", 12, 2, 13, 1),
    Sketcher.Constraint("Coincident", 13, 2, 0, 1),
    Sketcher.Constraint("Vertical", 0),
    Sketcher.Constraint("Horizontal", 1),
    Sketcher.Constraint("Vertical", 2),
    Sketcher.Constraint("Horizontal", 3),
    Sketcher.Constraint("Vertical", 7),
    Sketcher.Constraint("Vertical", 10),
    Sketcher.Constraint("Horizontal", 12),
    Sketcher.Constraint("Equal", 4, 6),
    Sketcher.Constraint("PointOnObject", 0, 2, -1),
    Sketcher.Constraint("PointOnObject", 9, 2, -1),
    Sketcher.Constraint("Perpendicular", 11, 13),
    Sketcher.Constraint("Horizontal", 10, 2, 13, 2),
    Sketcher.Constraint("Equal", 11, 13),
    Sketcher.Constraint("Radius", 4, Q("10 mm")),
    Sketcher.Constraint("Radius", 8, Q("45 mm")),
    Sketcher.Constraint("DistanceX", 1, 1, 1, 2, Q("9 mm")),
    Sketcher.Constraint("DistanceX", 12, 1, 12, 2, Q("114 mm")),
    Sketcher.Constraint("DistanceY", 0, 1, 0, 2, Q("39 mm")),
    Sketcher.Constraint("DistanceY", 2, 2, 2, 1, Q("100 mm")),
    Sketcher.Constraint("DistanceY", -1, 1, 8, 3, Q("42 mm")),
    Sketcher.Constraint("DistanceY", 11, 2, -1, 1, Q("47 mm")),
    Sketcher.Constraint("DistanceX", 0, 2, 8, 3, Q("74 mm")),
    Sketcher.Constraint("DistanceX", 3, 1, 3, 2, Q("15.487313 mm")),
    Sketcher.Constraint("DistanceY", 7, 1, 7, 2, Q("36.218955 mm")),
    Sketcher.Constraint("DistanceX", 5, 2, -1, 1, Q("1270.465619 mm")),
])
pad11 = body11.newObject("PartDesign::Pad", "Pad010")
pad11.Profile = sketch15
pad11.Length = 10
pad11.Reversed = True

sketch16 = body11.newObject("Sketcher::SketchObject", "Sketch015")
sketch16.AttachmentSupport = (doc.getObject("YZ_Plane010"), [""])
sketch16.MapMode = "FlatFace"
sketch16.AttachmentOffset = App.Placement(App.Vector(0, 0, 4959.658786), App.Rotation())
sketch16.addGeometry(Part.Circle(App.Vector(-1313, 42, 0), App.Vector(0, 0, 1), 12), False)
sketch16.addConstraint([
    Sketcher.Constraint("Diameter", 0, Q("25 mm")),
    Sketcher.Constraint("DistanceY", -1, 1, 0, 3, Q("42 mm")),
    Sketcher.Constraint("DistanceX", 0, 3, -1, 1, Q("1312.963997 mm")),
])
pocket5 = body11.newObject("PartDesign::Pocket", "Pocket004")
pocket5.Profile = sketch16
pocket5.Length = 10
pocket5.Reversed = True

sketch17 = body11.newObject("Sketcher::SketchObject", "Sketch016")
sketch17.AttachmentSupport = (doc.getObject("YZ_Plane010"), [""])
sketch17.MapMode = "FlatFace"
sketch17.AttachmentOffset = App.Placement(App.Vector(0, 0, 4959.658786), App.Rotation())
sketch17.addGeometry([
    Part.LineSegment(App.Vector(-1517, -12, 0), App.Vector(-1387, -12, 0)),
    Part.LineSegment(App.Vector(-1387, -12, 0), App.Vector(-1387, -39, 0)),
    Part.LineSegment(App.Vector(-1387, -39, 0), App.Vector(-1395, -47, 0)),
    Part.LineSegment(App.Vector(-1395, -47, 0), App.Vector(-1509, -47, 0)),
    Part.LineSegment(App.Vector(-1509, -47, 0), App.Vector(-1517, -39, 0)),
    Part.LineSegment(App.Vector(-1517, -39, 0), App.Vector(-1517, -12, 0)),
], False)
sketch17.addConstraint([
    Sketcher.Constraint("Coincident", 0, 2, 1, 1),
    Sketcher.Constraint("Coincident", 1, 2, 2, 1),
    Sketcher.Constraint("Coincident", 2, 2, 3, 1),
    Sketcher.Constraint("Coincident", 3, 2, 4, 1),
    Sketcher.Constraint("Coincident", 4, 2, 5, 1),
    Sketcher.Constraint("Coincident", 5, 2, 0, 1),
    Sketcher.Constraint("Horizontal", 0),
    Sketcher.Constraint("Vertical", 1),
    Sketcher.Constraint("Horizontal", 3),
    Sketcher.Constraint("Vertical", 5),
    Sketcher.Constraint("Perpendicular", 2, 4),
    Sketcher.Constraint("Horizontal", 1, 2, 4, 2),
    Sketcher.Constraint("Equal", 2, 4),
    Sketcher.Constraint("DistanceX", 0, 1, 0, 2, Q("130 mm")),
    Sketcher.Constraint("DistanceX", 3, 2, 3, 1, Q("114 mm")),
    Sketcher.Constraint("DistanceY", 1, 2, 1, 1, Q("27 mm")),
    Sketcher.Constraint("DistanceY", 0, 2, -1, 1, Q("12 mm")),
    Sketcher.Constraint("DistanceX", 0, 2, -1, 1, Q("1386.963997 mm")),
])
pocket6 = body11.newObject("PartDesign::Pocket", "Pocket005")
pocket6.Profile = sketch17
pocket6.Length = 10
pocket6.Reversed = True

sketch18 = body11.newObject("Sketcher::SketchObject", "Sketch017")
sketch18.AttachmentSupport = (doc.getObject("XZ_Plane010"), [""])
sketch18.MapMode = "FlatFace"
sketch18.AttachmentOffset = App.Placement(App.Vector(0, 0, 1283.144512), App.Rotation())
sketch18.addGeometry([
    Part.LineSegment(App.Vector(4959.7, 57, 0), App.Vector(4969.7, 57, 0)),
    Part.LineSegment(App.Vector(4969.7, 57, 0), App.Vector(4969.7, 54.5, 0)),
    Part.LineSegment(App.Vector(4969.7, 54.5, 0), App.Vector(4959.7, 54.5, 0)),
    Part.LineSegment(App.Vector(4959.7, 54.5, 0), App.Vector(4959.7, 57, 0)),
], False)
sketch18.addGeometry(Part.LineSegment(App.Vector(4969.7, 57, 0), App.Vector(4959.7, 57, 0)), True)
sketch18.addConstraint([
    Sketcher.Constraint("Coincident", 0, 2, 1, 1),
    Sketcher.Constraint("Coincident", 1, 2, 2, 1),
    Sketcher.Constraint("Coincident", 2, 2, 3, 1),
    Sketcher.Constraint("Coincident", 3, 2, 0, 1),
    Sketcher.Constraint("Horizontal", 0),
    Sketcher.Constraint("Vertical", 1),
    Sketcher.Constraint("Horizontal", 2),
    Sketcher.Constraint("Vertical", 3),
    Sketcher.Constraint("Horizontal", 4),
    Sketcher.Constraint("Coincident", 4, 1, 0, 2),
    Sketcher.Constraint("Vertical", 2, 2, 4, 2),
    Sketcher.Constraint("DistanceY", 1, 2, 1, 1, Q("2.5 mm")),
    Sketcher.Constraint("DistanceY", -1, 1, 0, 2, Q("57 mm")),
    Sketcher.Constraint("DistanceX", 0, 1, 0, 2, Q("10.001 mm")),
    Sketcher.Constraint("DistanceX", -1, 1, 0, 2, Q("4969.658786 mm")),
])
groove = body11.newObject("PartDesign::Groove", "Groove")
groove.Profile = sketch18
groove.ReferenceAxis = (sketch18, ["Axis0"])
groove.Angle = 360
doc.recompute()

datumline = body11.newObject("PartDesign::Line", "DatumLine")
datumline.Placement = App.Placement(App.Vector(0, 0, 0), App.Rotation(App.Vector(0, 0, 1), App.Vector(0, 0.012181823, -0.999925799)))
linearpattern = body11.newObject("PartDesign::LinearPattern", "LinearPattern")
linearpattern.Originals = [groove]
linearpattern.Direction = (datumline, [""])
linearpattern.Mode = "offset"
linearpattern.Offset = 30
linearpattern.Occurrences = 2
body11.Tip = linearpattern
body12 = doc.addObject("PartDesign::Body", "Body011")

sketch19 = body12.newObject("Sketcher::SketchObject", "Sketch018")
sketch19.AttachmentSupport = (doc.getObject("YZ_Plane011"), [""])
sketch19.MapMode = "FlatFace"
sketch19.AttachmentOffset = App.Placement(App.Vector(0, 0, 4894.658786), App.Rotation())
sketch19.addGeometry([
    Part.LineSegment(App.Vector(-1387, -39, 0), App.Vector(-1395, -47, 0)),
    Part.LineSegment(App.Vector(-1395, -47, 0), App.Vector(-1509, -47, 0)),
    Part.LineSegment(App.Vector(-1509, -47, 0), App.Vector(-1517, -39, 0)),
    Part.LineSegment(App.Vector(-1517, -39, 0), App.Vector(-1517, 0, 0)),
    Part.LineSegment(App.Vector(-1517, 0, 0), App.Vector(-1331, 83, 0)),
    Part.ArcOfCircle(Part.Circle(App.Vector(-1313, 42, 0), App.Vector(0, 0, 1), 45), math.radians(0), math.radians(114)),
    Part.LineSegment(App.Vector(-1268, 42, 0), App.Vector(-1268, 6, 0)),
    Part.ArcOfCircle(Part.Circle(App.Vector(-1278, 6, 0), App.Vector(0, 0, 1), 10), math.radians(-41), math.radians(0)),
    Part.LineSegment(App.Vector(-1270, -1, 0), App.Vector(-1355, -97, 0)),
    Part.ArcOfCircle(Part.Circle(App.Vector(-1362, -90, 0), App.Vector(0, 0, 1), 10), math.radians(-90), math.radians(-41)),
    Part.LineSegment(App.Vector(-1362, -100, 0), App.Vector(-1378, -100, 0)),
    Part.LineSegment(App.Vector(-1378, -100, 0), App.Vector(-1378, 0, 0)),
    Part.LineSegment(App.Vector(-1378, 0, 0), App.Vector(-1387, 0, 0)),
    Part.LineSegment(App.Vector(-1387, 0, 0), App.Vector(-1387, -39, 0)),
], False)
sketch19.addConstraint([
    Sketcher.Constraint("Coincident", 0, 2, 1, 1),
    Sketcher.Constraint("Coincident", 1, 2, 2, 1),
    Sketcher.Constraint("Coincident", 2, 2, 3, 1),
    Sketcher.Constraint("Coincident", 3, 2, 4, 1),
    Sketcher.Constraint("Tangent", 4, 2, 5, 2),
    Sketcher.Constraint("Tangent", 5, 1, 6, 1),
    Sketcher.Constraint("Tangent", 6, 2, 7, 2),
    Sketcher.Constraint("Tangent", 7, 1, 8, 1),
    Sketcher.Constraint("Tangent", 8, 2, 9, 2),
    Sketcher.Constraint("Tangent", 9, 1, 10, 1),
    Sketcher.Constraint("Coincident", 10, 2, 11, 1),
    Sketcher.Constraint("Coincident", 11, 2, 12, 1),
    Sketcher.Constraint("Coincident", 12, 2, 13, 1),
    Sketcher.Constraint("Coincident", 13, 2, 0, 1),
    Sketcher.Constraint("Horizontal", 1),
    Sketcher.Constraint("Vertical", 3),
    Sketcher.Constraint("Vertical", 6),
    Sketcher.Constraint("Horizontal", 10),
    Sketcher.Constraint("Vertical", 11),
    Sketcher.Constraint("Horizontal", 12),
    Sketcher.Constraint("Vertical", 13),
    Sketcher.Constraint("Equal", 7, 9),
    Sketcher.Constraint("PointOnObject", 3, 2, -1),
    Sketcher.Constraint("PointOnObject", 11, 2, -1),
    Sketcher.Constraint("Perpendicular", 0, 2),
    Sketcher.Constraint("Horizontal", 2, 2, 13, 2),
    Sketcher.Constraint("Equal", 0, 2),
    Sketcher.Constraint("Radius", 5, Q("45 mm")),
    Sketcher.Constraint("Radius", 7, Q("10 mm")),
    Sketcher.Constraint("DistanceX", 1, 2, 1, 1, Q("114 mm")),
    Sketcher.Constraint("DistanceX", 12, 2, 12, 1, Q("9 mm")),
    Sketcher.Constraint("DistanceY", 3, 1, 3, 2, Q("39 mm")),
    Sketcher.Constraint("DistanceY", 11, 1, 11, 2, Q("100 mm")),
    Sketcher.Constraint("DistanceY", -1, 1, 5, 3, Q("42 mm")),
    Sketcher.Constraint("DistanceY", 0, 2, -1, 1, Q("47 mm")),
    Sketcher.Constraint("DistanceX", 0, 2, 5, 3, Q("82 mm")),
    Sketcher.Constraint("DistanceX", 10, 2, 10, 1, Q("15.487313 mm")),
    Sketcher.Constraint("DistanceY", 6, 2, 6, 1, Q("36.218955 mm")),
    Sketcher.Constraint("DistanceX", 4, 2, -1, 1, Q("1331.346871 mm")),
])
pad12 = body12.newObject("PartDesign::Pad", "Pad011")
pad12.Profile = sketch19
pad12.Length = 10
pad12.Reversed = True

sketch20 = body12.newObject("Sketcher::SketchObject", "Sketch019")
sketch20.AttachmentSupport = (doc.getObject("YZ_Plane011"), [""])
sketch20.MapMode = "FlatFace"
sketch20.AttachmentOffset = App.Placement(App.Vector(0, 0, 4884.658786), App.Rotation())
sketch20.addGeometry(Part.Circle(App.Vector(-1313, 42, 0), App.Vector(0, 0, 1), 15), False)
sketch20.addConstraint([
    Sketcher.Constraint("Diameter", 0, Q("30 mm")),
    Sketcher.Constraint("DistanceY", -1, 1, 0, 3, Q("42 mm")),
    Sketcher.Constraint("DistanceX", 0, 3, -1, 1, Q("1312.963997 mm")),
])
pocket7 = body12.newObject("PartDesign::Pocket", "Pocket006")
pocket7.Profile = sketch20
pocket7.Length = 10
pocket7.Reversed = True

sketch21 = body12.newObject("Sketcher::SketchObject", "Sketch020")
sketch21.AttachmentSupport = (doc.getObject("XZ_Plane011"), [""])
sketch21.MapMode = "FlatFace"
sketch21.AttachmentOffset = App.Placement(App.Vector(0, 0, 1298.076752), App.Rotation())
sketch21.addGeometry([
    Part.LineSegment(App.Vector(4894.7, 27, 0), App.Vector(4884.7, 27, 0)),
    Part.LineSegment(App.Vector(4884.7, 27, 0), App.Vector(4884.7, 29.5, 0)),
    Part.LineSegment(App.Vector(4884.7, 29.5, 0), App.Vector(4894.7, 29.5, 0)),
    Part.LineSegment(App.Vector(4894.7, 29.5, 0), App.Vector(4894.7, 27, 0)),
], False)
sketch21.addGeometry(Part.LineSegment(App.Vector(4884.7, 27, 0), App.Vector(4894.7, 27, 0)), True)
sketch21.addConstraint([
    Sketcher.Constraint("Coincident", 0, 2, 1, 1),
    Sketcher.Constraint("Coincident", 1, 2, 2, 1),
    Sketcher.Constraint("Coincident", 2, 2, 3, 1),
    Sketcher.Constraint("Coincident", 3, 2, 0, 1),
    Sketcher.Constraint("Horizontal", 0),
    Sketcher.Constraint("Vertical", 1),
    Sketcher.Constraint("Horizontal", 2),
    Sketcher.Constraint("Vertical", 3),
    Sketcher.Constraint("Horizontal", 4),
    Sketcher.Constraint("Coincident", 4, 1, 0, 2),
    Sketcher.Constraint("Vertical", 2, 2, 4, 2),
    Sketcher.Constraint("DistanceY", 1, 1, 1, 2, Q("2.5 mm")),
    Sketcher.Constraint("DistanceY", -1, 1, 0, 2, Q("27 mm")),
    Sketcher.Constraint("DistanceX", 0, 2, 0, 1, Q("10.001 mm")),
    Sketcher.Constraint("DistanceX", -1, 1, 0, 2, Q("4884.658786 mm")),
])
groove2 = body12.newObject("PartDesign::Groove", "Groove001")
groove2.Profile = sketch21
groove2.ReferenceAxis = (sketch21, ["Axis0"])
groove2.Angle = 360
doc.recompute()

datumline2 = body12.newObject("PartDesign::Line", "DatumLine001")
datumline2.Placement = App.Placement(App.Vector(0, 0, 0), App.Rotation(App.Vector(0, 0, 1), App.Vector(0, 0.007545228, 0.999971534)))
linearpattern2 = body12.newObject("PartDesign::LinearPattern", "LinearPattern001")
linearpattern2.Originals = [groove2]
linearpattern2.Direction = (datumline2, [""])
linearpattern2.Mode = "offset"
linearpattern2.Offset = 30
linearpattern2.Occurrences = 2
body12.Tip = linearpattern2
body13 = doc.addObject("PartDesign::Body", "Body012")
doc.recompute()

mirroring = doc.addObject("Part::Mirroring", "Mirroring")
mirroring.Source = body11
mirroring.Base = App.Vector(2252.158786, 0, 0)
mirroring.Normal = App.Vector(1, 0, 0)
body13.BaseFeature = mirroring
doc.recompute()
body14 = doc.addObject("PartDesign::Body", "Body013")
doc.recompute()

mirroring2 = doc.addObject("Part::Mirroring", "Mirroring001")
mirroring2.Source = body12
mirroring2.Base = App.Vector(2252.158786, 0, 0)
mirroring2.Normal = App.Vector(1, 0, 0)
body14.BaseFeature = mirroring2
doc.recompute()
mirroring.Visibility = False
mirroring2.Visibility = False

doc.recompute()
